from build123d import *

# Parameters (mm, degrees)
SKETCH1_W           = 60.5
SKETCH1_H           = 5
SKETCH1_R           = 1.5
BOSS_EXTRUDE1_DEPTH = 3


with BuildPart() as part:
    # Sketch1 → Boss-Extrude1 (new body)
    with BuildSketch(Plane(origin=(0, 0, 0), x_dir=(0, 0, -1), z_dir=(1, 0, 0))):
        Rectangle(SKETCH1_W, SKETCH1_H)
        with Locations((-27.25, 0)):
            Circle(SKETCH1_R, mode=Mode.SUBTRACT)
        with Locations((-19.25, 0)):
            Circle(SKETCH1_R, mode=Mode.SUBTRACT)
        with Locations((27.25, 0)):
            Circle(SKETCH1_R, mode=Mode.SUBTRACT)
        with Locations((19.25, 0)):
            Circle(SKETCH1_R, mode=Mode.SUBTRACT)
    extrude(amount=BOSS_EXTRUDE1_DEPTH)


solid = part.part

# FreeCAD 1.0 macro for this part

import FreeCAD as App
import Part
import Sketcher
Q = App.Units.Quantity

doc = App.newDocument("Part")
params = doc.addObject("Spreadsheet::Sheet", "Params")
for row, (alias, value) in enumerate([
    ("sketch1_diameter", "3 mm"),
    ("sketch1_width", "5 mm"),
    ("sketch1_height", "60.5 mm"),
    ("pad1_length", "3 mm"),
], start=1):
    params.set(f"A{row}", alias)
    params.set(f"B{row}", "=" + value)
    params.setAlias(f"B{row}", alias)

body = doc.addObject("PartDesign::Body", "Body")

# Sketch on YZ plane
sketch1 = doc.addObject("Sketcher::SketchObject", "Sketch")
body.addObject(sketch1)
sketch1.AttachmentSupport = (doc.YZ_Plane, [""])
sketch1.MapMode = "FlatFace"
sketch1.addGeometry(Part.LineSegment(App.Vector(2.5, 30.2, 0), App.Vector(-2.5, 30.2, 0)), False)
sketch1.addGeometry(Part.LineSegment(App.Vector(-2.5, 30.2, 0), App.Vector(-2.5, -30.2, 0)), False)
sketch1.addGeometry(Part.LineSegment(App.Vector(-2.5, -30.2, 0), App.Vector(2.5, -30.2, 0)), False)
sketch1.addGeometry(Part.LineSegment(App.Vector(2.5, -30.2, 0), App.Vector(2.5, 30.2, 0)), False)
sketch1.addGeometry(Part.Circle(App.Vector(0, 27.2, 0), App.Vector(0, 0, 1), 1.5), False)
sketch1.addGeometry(Part.Circle(App.Vector(0, 19.2, 0), App.Vector(0, 0, 1), 1.5), False)
sketch1.addGeometry(Part.Circle(App.Vector(0, -19.2, 0), App.Vector(0, 0, 1), 1.5), False)
sketch1.addGeometry(Part.Circle(App.Vector(0, -27.2, 0), App.Vector(0, 0, 1), 1.5), False)
sketch1.addConstraint(Sketcher.Constraint("Coincident", 0, 2, 1, 1))
sketch1.addConstraint(Sketcher.Constraint("Coincident", 1, 2, 2, 1))
sketch1.addConstraint(Sketcher.Constraint("Coincident", 2, 2, 3, 1))
sketch1.addConstraint(Sketcher.Constraint("Coincident", 3, 2, 0, 1))
sketch1.addConstraint(Sketcher.Constraint("Horizontal", 0))
sketch1.addConstraint(Sketcher.Constraint("Vertical", 1))
sketch1.addConstraint(Sketcher.Constraint("Horizontal", 2))
sketch1.addConstraint(Sketcher.Constraint("Vertical", 3))
sketch1.addConstraint(Sketcher.Constraint("Equal", 4, 5))
sketch1.addConstraint(Sketcher.Constraint("Equal", 5, 6))
sketch1.addConstraint(Sketcher.Constraint("Equal", 6, 7))
sketch1.addConstraint(Sketcher.Constraint("Symmetric", 5, 3, 6, 3, -1, 1))
sketch1.addConstraint(Sketcher.Constraint("Symmetric", 4, 3, 7, 3, -1, 1))
sketch1.addConstraint(Sketcher.Constraint("Symmetric", 0, 2, 2, 2, -1, 1))
sketch1.addConstraint(Sketcher.Constraint("PointOnObject", 4, 3, -2))
sketch1.addConstraint(Sketcher.Constraint("PointOnObject", 5, 3, -2))
sketch1.addConstraint(Sketcher.Constraint("Diameter", 4, Q("3 mm")))
sketch1.addConstraint(Sketcher.Constraint("DistanceX", 0, 2, 0, 1, Q("5 mm")))
sketch1.addConstraint(Sketcher.Constraint("DistanceY", 1, 2, 1, 1, Q("60.5 mm")))
sketch1.addConstraint(Sketcher.Constraint("DistanceY", 5, 3, 4, 3, Q("8 mm")))
sketch1.addConstraint(Sketcher.Constraint("DistanceY", 4, 3, 0, 2, Q("3 mm")))
sketch1.setExpression("Constraints[16]", "Params.sketch1_diameter")
sketch1.setExpression("Constraints[17]", "Params.sketch1_width")
sketch1.setExpression("Constraints[18]", "Params.sketch1_height")
pad1 = doc.addObject("PartDesign::Pad", "Pad")
body.addObject(pad1)
pad1.Profile = sketch1
pad1.setExpression("Length", "Params.pad1_length")

doc.recompute()
